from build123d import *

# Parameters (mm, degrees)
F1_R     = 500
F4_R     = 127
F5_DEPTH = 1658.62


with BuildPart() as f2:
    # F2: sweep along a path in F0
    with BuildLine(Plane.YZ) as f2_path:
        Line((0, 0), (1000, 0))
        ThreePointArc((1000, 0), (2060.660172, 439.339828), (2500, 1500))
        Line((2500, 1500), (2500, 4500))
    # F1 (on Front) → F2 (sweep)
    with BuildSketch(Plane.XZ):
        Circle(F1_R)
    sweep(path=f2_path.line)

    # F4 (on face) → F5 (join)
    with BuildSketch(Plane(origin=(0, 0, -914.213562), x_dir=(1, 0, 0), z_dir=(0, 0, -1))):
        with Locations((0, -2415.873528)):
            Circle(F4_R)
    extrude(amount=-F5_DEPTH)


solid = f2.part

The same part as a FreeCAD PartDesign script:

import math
import FreeCAD as App
import Part
import Sketcher

V = App.Vector

doc = App.newDocument("Part")
params = doc.addObject("Spreadsheet::Sheet", "Params")
for row, (alias, value) in enumerate([
    ("sketch1_diameter", "1000 mm"),
    ("sketch2_radius", "1499.999999 mm"),
    ("sketch2_width", "1000 mm"),
    ("sketch2_height", "3000 mm"),
    ("sketch3_diameter", "254 mm"),
    ("pad1_length", "1658.62 mm"),
], start=1):
    params.set(f"A{row}", alias)
    params.set(f"B{row}", "=" + value)
    params.setAlias(f"B{row}", alias)

body = doc.addObject("PartDesign::Body", "Body")

sketch1 = body.newObject("Sketcher::SketchObject", "Sketch")
sketch1.AttachmentSupport = (doc.getObject("XZ_Plane"), [""])
sketch1.MapMode = "FlatFace"
sketch1.addGeometry(Part.Circle(V(0, 0, 0), V(0, 0, 1), 500), False)
sketch1.addConstraint(Sketcher.Constraint("Coincident", 0, 3, -1, 1))
sketch1.addConstraint(Sketcher.Constraint("Diameter", 0, 1000.0))
sketch1.setExpression("Constraints[1]", "Params.sketch1_diameter")

sketch2 = body.newObject("Sketcher::SketchObject", "Sketch001")
sketch2.AttachmentSupport = (doc.getObject("YZ_Plane"), [""])
sketch2.MapMode = "FlatFace"
sketch2.addGeometry(Part.LineSegment(V(0, 0, 0), V(1000, 0, 0)), False)
sketch2.addGeometry(Part.ArcOfCircle(Part.Circle(V(1000.000001, 1499.999999, 0), V(0, 0, 1), 1499.999999), math.radians(-90), math.radians(0)), False)
sketch2.addGeometry(Part.LineSegment(V(2500, 1500, 0), V(2500, 4500, 0)), False)
sketch2.addConstraint(Sketcher.Constraint("Coincident", 0, 2, 1, 1))
sketch2.addConstraint(Sketcher.Constraint("Coincident", 1, 2, 2, 1))
sketch2.addConstraint(Sketcher.Constraint("Horizontal", 0))
sketch2.addConstraint(Sketcher.Constraint("Vertical", 2))
sketch2.addConstraint(Sketcher.Constraint("Coincident", 0, 1, -1, 1))
sketch2.addConstraint(Sketcher.Constraint("Vertical", 1, 3, 0, 2))
sketch2.addConstraint(Sketcher.Constraint("Radius", 1, 1499.999999))
sketch2.addConstraint(Sketcher.Constraint("DistanceX", 0, 1, 0, 2, 1000.0))
sketch2.addConstraint(Sketcher.Constraint("DistanceY", 2, 1, 2, 2, 3000.0))
sketch2.addConstraint(Sketcher.Constraint("DistanceY", -1, 1, 2, 2, 4500.0))
sketch2.setExpression("Constraints[6]", "Params.sketch2_radius")
sketch2.setExpression("Constraints[7]", "Params.sketch2_width")
sketch2.setExpression("Constraints[8]", "Params.sketch2_height")
doc.recompute()

additivepipe = body.newObject("PartDesign::AdditivePipe", "AdditivePipe")
additivepipe.Profile = sketch1
additivepipe.Spine = (sketch2, ["Edge1", "Edge2", "Edge3"])

sketch3 = body.newObject("Sketcher::SketchObject", "Sketch002")
sketch3.AttachmentSupport = (doc.getObject("XY_Plane"), [""])
sketch3.MapMode = "FlatFace"
sketch3.AttachmentOffset = App.Placement(V(0, 0, -914.213562), App.Rotation())
sketch3.addGeometry(Part.Circle(V(0, 2415.873528, 0), V(0, 0, 1), 127), False)
sketch3.addConstraint(Sketcher.Constraint("PointOnObject", 0, 3, -2))
sketch3.addConstraint(Sketcher.Constraint("Diameter", 0, 254.0))
sketch3.addConstraint(Sketcher.Constraint("DistanceY", -1, 1, 0, 3, 2415.873528))
sketch3.setExpression("Constraints[1]", "Params.sketch3_diameter")
pad1 = body.newObject("PartDesign::Pad", "Pad")
pad1.Profile = sketch3
pad1.setExpression("Length", "Params.pad1_length")

doc.recompute()
